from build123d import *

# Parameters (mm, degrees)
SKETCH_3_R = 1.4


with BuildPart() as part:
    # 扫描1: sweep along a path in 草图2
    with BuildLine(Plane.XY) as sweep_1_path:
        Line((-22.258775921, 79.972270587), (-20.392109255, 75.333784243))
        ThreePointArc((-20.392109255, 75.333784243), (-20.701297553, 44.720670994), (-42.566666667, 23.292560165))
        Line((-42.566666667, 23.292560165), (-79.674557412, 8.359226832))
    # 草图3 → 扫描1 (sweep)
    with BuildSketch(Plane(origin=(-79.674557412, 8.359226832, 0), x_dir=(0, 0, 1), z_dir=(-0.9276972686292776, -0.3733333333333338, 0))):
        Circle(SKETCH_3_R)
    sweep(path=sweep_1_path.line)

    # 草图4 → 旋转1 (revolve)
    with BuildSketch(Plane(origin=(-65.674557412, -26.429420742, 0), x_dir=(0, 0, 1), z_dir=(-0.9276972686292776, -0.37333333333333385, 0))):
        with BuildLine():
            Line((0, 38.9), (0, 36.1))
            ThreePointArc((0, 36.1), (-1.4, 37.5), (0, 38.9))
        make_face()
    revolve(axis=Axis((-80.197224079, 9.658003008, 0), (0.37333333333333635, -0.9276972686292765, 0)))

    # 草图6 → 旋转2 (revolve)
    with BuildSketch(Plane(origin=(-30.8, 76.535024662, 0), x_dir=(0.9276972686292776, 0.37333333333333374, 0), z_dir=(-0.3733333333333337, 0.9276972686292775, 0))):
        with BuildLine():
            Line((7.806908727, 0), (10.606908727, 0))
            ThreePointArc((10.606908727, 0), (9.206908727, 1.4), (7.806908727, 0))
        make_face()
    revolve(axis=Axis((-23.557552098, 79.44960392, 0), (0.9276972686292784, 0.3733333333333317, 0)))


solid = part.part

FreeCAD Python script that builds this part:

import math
import FreeCAD as App
import Part
import Sketcher

V = App.Vector

doc = App.newDocument("Part")
params = doc.addObject("Spreadsheet::Sheet", "Params")
for row, (alias, value) in enumerate([
    ("sketch1_diameter", "2.8 mm"),
    ("sketch2_radius", "40 mm"),
    ("sketch2_length", "5 mm"),
    ("sketch2_length2", "40 mm"),
    ("sketch3_radius", "1.4 mm"),
    ("revolution_angle", "360 deg"),
    ("sketch4_radius", "1.4 mm"),
    ("revolution2_angle", "360 deg"),
], start=1):
    params.set(f"A{row}", alias)
    params.set(f"B{row}", "=" + value)
    params.setAlias(f"B{row}", alias)

body = doc.addObject("PartDesign::Body", "Body")

sketch1 = body.newObject("Sketcher::SketchObject", "Sketch")
sketch1.Placement = App.Placement(V(-79.674557, 8.359227, 0), App.Rotation(V(0, 0, 1), V(-0.373333333, 0.927697269, 0), V(-0.927697269, -0.373333333, 0), "ZXY"))
sketch1.addGeometry(Part.Circle(V(0, 0, 0), V(0, 0, 1), 1.4), False)
sketch1.addConstraint([
    Sketcher.Constraint("Coincident", 0, 3, -1, 1),
    Sketcher.Constraint("Diameter", 0, 2.8),
])
sketch1.setExpression("Constraints[1]", "Params.sketch1_diameter")

sketch2 = body.newObject("Sketcher::SketchObject", "Sketch001")
sketch2.AttachmentSupport = (doc.getObject("XY_Plane"), [""])
sketch2.MapMode = "FlatFace"
sketch2.addGeometry([
    Part.LineSegment(V(-22.258776, 79.972271, 0), V(-20.392109, 75.333784, 0)),
    Part.ArcOfCircle(Part.Circle(V(-57.5, 60.400451, 0), V(0, 0, 1), 40), math.radians(-68.07866), math.radians(21.92134)),
    Part.LineSegment(V(-42.566667, 23.29256, 0), V(-79.674557, 8.359227, 0)),
], False)
sketch2.addConstraint([
    Sketcher.Constraint("Tangent", 0, 2, 1, 2),
    Sketcher.Constraint("Tangent", 1, 1, 2, 1),
    Sketcher.Constraint("Perpendicular", 0, 2),
    Sketcher.Constraint("Radius", 1, 40.0),
    Sketcher.Constraint("Distance", 0, 5.0),
    Sketcher.Constraint("Distance", 2, 40.0),
    Sketcher.Constraint("DistanceX", 1, 3, -1, 1, 57.5),
    Sketcher.Constraint("DistanceY", -1, 1, 1, 3, 60.400451),
    Sketcher.Constraint("DistanceY", -1, 1, 0, 1, 79.972271),
])
sketch2.setExpression("Constraints[3]", "Params.sketch2_radius")
sketch2.setExpression("Constraints[4]", "Params.sketch2_length")
sketch2.setExpression("Constraints[5]", "Params.sketch2_length2")
doc.recompute()

additivepipe = body.newObject("PartDesign::AdditivePipe", "AdditivePipe")
additivepipe.Profile = sketch1
additivepipe.Spine = (sketch2, ["Edge1", "Edge2", "Edge3"])

sketch3 = body.newObject("Sketcher::SketchObject", "Sketch002")
sketch3.Placement = App.Placement(V(-65.674557, -26.429421, 0), App.Rotation(V(0, 0, 1), V(-0.373333333, 0.927697269, 0), V(-0.927697269, -0.373333333, 0), "ZXY"))
sketch3.addGeometry([
    Part.LineSegment(V(0, 36.1, 0), V(0, 38.9, 0)),
    Part.ArcOfCircle(Part.Circle(V(0, 37.5, 0), V(0, 0, 1), 1.4), math.radians(90), math.radians(270)),
], False)
sketch3.addConstraint([
    Sketcher.Constraint("Coincident", 0, 1, 1, 2),
    Sketcher.Constraint("Coincident", 1, 1, 0, 2),
    Sketcher.Constraint("Vertical", 0),
    Sketcher.Constraint("PointOnObject", 1, 3, -2),
    Sketcher.Constraint("PointOnObject", 0, 1, -2),
    Sketcher.Constraint("Radius", 1, 1.4),
    Sketcher.Constraint("DistanceY", -1, 1, 1, 3, 37.5),
])
sketch3.setExpression("Constraints[5]", "Params.sketch3_radius")
revolution = body.newObject("PartDesign::Revolution", "Revolution")
revolution.Profile = sketch3
revolution.ReferenceAxis = (sketch3, ["V_Axis"])
revolution.setExpression("Angle", "Params.revolution_angle")

sketch4 = body.newObject("Sketcher::SketchObject", "Sketch003")
sketch4.Placement = App.Placement(V(-30.8, 76.535025, 0), App.Rotation(V(0.927697269, 0.373333333, 0), V(0, 0, -1), V(-0.373333333, 0.927697269, 0), "ZXY"))
sketch4.addGeometry([
    Part.LineSegment(V(7.806909, 0, 0), V(10.606909, 0, 0)),
    Part.ArcOfCircle(Part.Circle(V(9.206909, 0, 0), V(0, 0, 1), 1.4), math.radians(0), math.radians(180)),
], False)
sketch4.addConstraint([
    Sketcher.Constraint("Coincident", 0, 1, 1, 2),
    Sketcher.Constraint("Coincident", 1, 1, 0, 2),
    Sketcher.Constraint("Horizontal", 0),
    Sketcher.Constraint("PointOnObject", 1, 3, -1),
    Sketcher.Constraint("PointOnObject", 0, 1, -1),
    Sketcher.Constraint("Radius", 1, 1.4),
    Sketcher.Constraint("DistanceX", -1, 1, 1, 3, 9.206909),
])
sketch4.setExpression("Constraints[5]", "Params.sketch4_radius")
revolution2 = body.newObject("PartDesign::Revolution", "Revolution001")
revolution2.Profile = sketch4
revolution2.ReferenceAxis = (sketch4, ["H_Axis"])
revolution2.setExpression("Angle", "Params.revolution2_angle")

doc.recompute()
